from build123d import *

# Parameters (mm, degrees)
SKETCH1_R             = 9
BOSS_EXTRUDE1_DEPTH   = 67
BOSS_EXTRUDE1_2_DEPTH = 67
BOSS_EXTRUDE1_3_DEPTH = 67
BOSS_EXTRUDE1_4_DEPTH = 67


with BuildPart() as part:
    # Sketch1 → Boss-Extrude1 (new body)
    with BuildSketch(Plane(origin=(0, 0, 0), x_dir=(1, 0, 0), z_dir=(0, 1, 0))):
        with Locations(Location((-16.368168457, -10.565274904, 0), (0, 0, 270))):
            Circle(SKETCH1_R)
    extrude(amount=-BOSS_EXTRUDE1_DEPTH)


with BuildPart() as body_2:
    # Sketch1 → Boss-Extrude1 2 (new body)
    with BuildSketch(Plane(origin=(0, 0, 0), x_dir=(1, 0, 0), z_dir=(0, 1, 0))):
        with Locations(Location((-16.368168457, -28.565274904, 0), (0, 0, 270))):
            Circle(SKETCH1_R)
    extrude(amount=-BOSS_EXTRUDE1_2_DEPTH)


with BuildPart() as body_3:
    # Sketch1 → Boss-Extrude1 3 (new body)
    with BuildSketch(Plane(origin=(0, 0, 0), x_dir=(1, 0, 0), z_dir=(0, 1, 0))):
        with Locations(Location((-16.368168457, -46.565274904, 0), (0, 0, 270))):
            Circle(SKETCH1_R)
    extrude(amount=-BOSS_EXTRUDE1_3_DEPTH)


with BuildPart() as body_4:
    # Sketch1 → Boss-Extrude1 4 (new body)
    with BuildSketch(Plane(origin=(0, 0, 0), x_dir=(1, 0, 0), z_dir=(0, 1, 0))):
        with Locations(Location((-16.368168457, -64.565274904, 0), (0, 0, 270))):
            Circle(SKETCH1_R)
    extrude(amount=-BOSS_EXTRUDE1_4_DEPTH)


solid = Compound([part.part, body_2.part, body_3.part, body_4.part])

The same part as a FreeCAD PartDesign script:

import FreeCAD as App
import Part
import Sketcher

V = App.Vector

doc = App.newDocument("Part")
body = doc.addObject("PartDesign::Body", "Body")

# Sketch on XZ plane
sketch1 = body.newObject("Sketcher::SketchObject", "Sketch")
sketch1.AttachmentSupport = (doc.getObject("XZ_Plane"), [""])
sketch1.MapMode = "FlatFace"
sketch1.addGeometry(Part.Circle(V(-16.368168, 10.565275, 0), V(0, 0, 1), 9), False)
sketch1.addConstraint([
    Sketcher.Constraint("Diameter", 0, 18.0),
    Sketcher.Constraint("DistanceX", 0, 3, -1, 1, 16.368168),
    Sketcher.Constraint("DistanceY", -1, 1, 0, 3, 10.565275),
])
pad1 = body.newObject("PartDesign::Pad", "Pad")
pad1.Profile = sketch1
pad1.Length = 67
body2 = doc.addObject("PartDesign::Body", "Body001")

# Sketch on XZ plane
sketch2 = body2.newObject("Sketcher::SketchObject", "Sketch001")
sketch2.AttachmentSupport = (doc.getObject("XZ_Plane001"), [""])
sketch2.MapMode = "FlatFace"
sketch2.addGeometry(Part.Circle(V(-16.368168, 28.565275, 0), V(0, 0, 1), 9), False)
sketch2.addConstraint([
    Sketcher.Constraint("Diameter", 0, 18.0),
    Sketcher.Constraint("DistanceX", 0, 3, -1, 1, 16.368168),
    Sketcher.Constraint("DistanceY", -1, 1, 0, 3, 28.565275),
])
pad2 = body2.newObject("PartDesign::Pad", "Pad001")
pad2.Profile = sketch2
pad2.Length = 67
body3 = doc.addObject("PartDesign::Body", "Body002")

# Sketch on XZ plane
sketch3 = body3.newObject("Sketcher::SketchObject", "Sketch002")
sketch3.AttachmentSupport = (doc.getObject("XZ_Plane002"), [""])
sketch3.MapMode = "FlatFace"
sketch3.addGeometry(Part.Circle(V(-16.368168, 46.565275, 0), V(0, 0, 1), 9), False)
sketch3.addConstraint([
    Sketcher.Constraint("Diameter", 0, 18.0),
    Sketcher.Constraint("DistanceX", 0, 3, -1, 1, 16.368168),
    Sketcher.Constraint("DistanceY", -1, 1, 0, 3, 46.565275),
])
pad3 = body3.newObject("PartDesign::Pad", "Pad002")
pad3.Profile = sketch3
pad3.Length = 67
body4 = doc.addObject("PartDesign::Body", "Body003")

# Sketch on XZ plane
sketch4 = body4.newObject("Sketcher::SketchObject", "Sketch003")
sketch4.AttachmentSupport = (doc.getObject("XZ_Plane003"), [""])
sketch4.MapMode = "FlatFace"
sketch4.addGeometry(Part.Circle(V(-16.368168, 64.565275, 0), V(0, 0, 1), 9), False)
sketch4.addConstraint([
    Sketcher.Constraint("Diameter", 0, 18.0),
    Sketcher.Constraint("DistanceX", 0, 3, -1, 1, 16.368168),
    Sketcher.Constraint("DistanceY", -1, 1, 0, 3, 64.565275),
])
pad4 = body4.newObject("PartDesign::Pad", "Pad003")
pad4.Profile = sketch4
pad4.Length = 67

doc.recompute()
